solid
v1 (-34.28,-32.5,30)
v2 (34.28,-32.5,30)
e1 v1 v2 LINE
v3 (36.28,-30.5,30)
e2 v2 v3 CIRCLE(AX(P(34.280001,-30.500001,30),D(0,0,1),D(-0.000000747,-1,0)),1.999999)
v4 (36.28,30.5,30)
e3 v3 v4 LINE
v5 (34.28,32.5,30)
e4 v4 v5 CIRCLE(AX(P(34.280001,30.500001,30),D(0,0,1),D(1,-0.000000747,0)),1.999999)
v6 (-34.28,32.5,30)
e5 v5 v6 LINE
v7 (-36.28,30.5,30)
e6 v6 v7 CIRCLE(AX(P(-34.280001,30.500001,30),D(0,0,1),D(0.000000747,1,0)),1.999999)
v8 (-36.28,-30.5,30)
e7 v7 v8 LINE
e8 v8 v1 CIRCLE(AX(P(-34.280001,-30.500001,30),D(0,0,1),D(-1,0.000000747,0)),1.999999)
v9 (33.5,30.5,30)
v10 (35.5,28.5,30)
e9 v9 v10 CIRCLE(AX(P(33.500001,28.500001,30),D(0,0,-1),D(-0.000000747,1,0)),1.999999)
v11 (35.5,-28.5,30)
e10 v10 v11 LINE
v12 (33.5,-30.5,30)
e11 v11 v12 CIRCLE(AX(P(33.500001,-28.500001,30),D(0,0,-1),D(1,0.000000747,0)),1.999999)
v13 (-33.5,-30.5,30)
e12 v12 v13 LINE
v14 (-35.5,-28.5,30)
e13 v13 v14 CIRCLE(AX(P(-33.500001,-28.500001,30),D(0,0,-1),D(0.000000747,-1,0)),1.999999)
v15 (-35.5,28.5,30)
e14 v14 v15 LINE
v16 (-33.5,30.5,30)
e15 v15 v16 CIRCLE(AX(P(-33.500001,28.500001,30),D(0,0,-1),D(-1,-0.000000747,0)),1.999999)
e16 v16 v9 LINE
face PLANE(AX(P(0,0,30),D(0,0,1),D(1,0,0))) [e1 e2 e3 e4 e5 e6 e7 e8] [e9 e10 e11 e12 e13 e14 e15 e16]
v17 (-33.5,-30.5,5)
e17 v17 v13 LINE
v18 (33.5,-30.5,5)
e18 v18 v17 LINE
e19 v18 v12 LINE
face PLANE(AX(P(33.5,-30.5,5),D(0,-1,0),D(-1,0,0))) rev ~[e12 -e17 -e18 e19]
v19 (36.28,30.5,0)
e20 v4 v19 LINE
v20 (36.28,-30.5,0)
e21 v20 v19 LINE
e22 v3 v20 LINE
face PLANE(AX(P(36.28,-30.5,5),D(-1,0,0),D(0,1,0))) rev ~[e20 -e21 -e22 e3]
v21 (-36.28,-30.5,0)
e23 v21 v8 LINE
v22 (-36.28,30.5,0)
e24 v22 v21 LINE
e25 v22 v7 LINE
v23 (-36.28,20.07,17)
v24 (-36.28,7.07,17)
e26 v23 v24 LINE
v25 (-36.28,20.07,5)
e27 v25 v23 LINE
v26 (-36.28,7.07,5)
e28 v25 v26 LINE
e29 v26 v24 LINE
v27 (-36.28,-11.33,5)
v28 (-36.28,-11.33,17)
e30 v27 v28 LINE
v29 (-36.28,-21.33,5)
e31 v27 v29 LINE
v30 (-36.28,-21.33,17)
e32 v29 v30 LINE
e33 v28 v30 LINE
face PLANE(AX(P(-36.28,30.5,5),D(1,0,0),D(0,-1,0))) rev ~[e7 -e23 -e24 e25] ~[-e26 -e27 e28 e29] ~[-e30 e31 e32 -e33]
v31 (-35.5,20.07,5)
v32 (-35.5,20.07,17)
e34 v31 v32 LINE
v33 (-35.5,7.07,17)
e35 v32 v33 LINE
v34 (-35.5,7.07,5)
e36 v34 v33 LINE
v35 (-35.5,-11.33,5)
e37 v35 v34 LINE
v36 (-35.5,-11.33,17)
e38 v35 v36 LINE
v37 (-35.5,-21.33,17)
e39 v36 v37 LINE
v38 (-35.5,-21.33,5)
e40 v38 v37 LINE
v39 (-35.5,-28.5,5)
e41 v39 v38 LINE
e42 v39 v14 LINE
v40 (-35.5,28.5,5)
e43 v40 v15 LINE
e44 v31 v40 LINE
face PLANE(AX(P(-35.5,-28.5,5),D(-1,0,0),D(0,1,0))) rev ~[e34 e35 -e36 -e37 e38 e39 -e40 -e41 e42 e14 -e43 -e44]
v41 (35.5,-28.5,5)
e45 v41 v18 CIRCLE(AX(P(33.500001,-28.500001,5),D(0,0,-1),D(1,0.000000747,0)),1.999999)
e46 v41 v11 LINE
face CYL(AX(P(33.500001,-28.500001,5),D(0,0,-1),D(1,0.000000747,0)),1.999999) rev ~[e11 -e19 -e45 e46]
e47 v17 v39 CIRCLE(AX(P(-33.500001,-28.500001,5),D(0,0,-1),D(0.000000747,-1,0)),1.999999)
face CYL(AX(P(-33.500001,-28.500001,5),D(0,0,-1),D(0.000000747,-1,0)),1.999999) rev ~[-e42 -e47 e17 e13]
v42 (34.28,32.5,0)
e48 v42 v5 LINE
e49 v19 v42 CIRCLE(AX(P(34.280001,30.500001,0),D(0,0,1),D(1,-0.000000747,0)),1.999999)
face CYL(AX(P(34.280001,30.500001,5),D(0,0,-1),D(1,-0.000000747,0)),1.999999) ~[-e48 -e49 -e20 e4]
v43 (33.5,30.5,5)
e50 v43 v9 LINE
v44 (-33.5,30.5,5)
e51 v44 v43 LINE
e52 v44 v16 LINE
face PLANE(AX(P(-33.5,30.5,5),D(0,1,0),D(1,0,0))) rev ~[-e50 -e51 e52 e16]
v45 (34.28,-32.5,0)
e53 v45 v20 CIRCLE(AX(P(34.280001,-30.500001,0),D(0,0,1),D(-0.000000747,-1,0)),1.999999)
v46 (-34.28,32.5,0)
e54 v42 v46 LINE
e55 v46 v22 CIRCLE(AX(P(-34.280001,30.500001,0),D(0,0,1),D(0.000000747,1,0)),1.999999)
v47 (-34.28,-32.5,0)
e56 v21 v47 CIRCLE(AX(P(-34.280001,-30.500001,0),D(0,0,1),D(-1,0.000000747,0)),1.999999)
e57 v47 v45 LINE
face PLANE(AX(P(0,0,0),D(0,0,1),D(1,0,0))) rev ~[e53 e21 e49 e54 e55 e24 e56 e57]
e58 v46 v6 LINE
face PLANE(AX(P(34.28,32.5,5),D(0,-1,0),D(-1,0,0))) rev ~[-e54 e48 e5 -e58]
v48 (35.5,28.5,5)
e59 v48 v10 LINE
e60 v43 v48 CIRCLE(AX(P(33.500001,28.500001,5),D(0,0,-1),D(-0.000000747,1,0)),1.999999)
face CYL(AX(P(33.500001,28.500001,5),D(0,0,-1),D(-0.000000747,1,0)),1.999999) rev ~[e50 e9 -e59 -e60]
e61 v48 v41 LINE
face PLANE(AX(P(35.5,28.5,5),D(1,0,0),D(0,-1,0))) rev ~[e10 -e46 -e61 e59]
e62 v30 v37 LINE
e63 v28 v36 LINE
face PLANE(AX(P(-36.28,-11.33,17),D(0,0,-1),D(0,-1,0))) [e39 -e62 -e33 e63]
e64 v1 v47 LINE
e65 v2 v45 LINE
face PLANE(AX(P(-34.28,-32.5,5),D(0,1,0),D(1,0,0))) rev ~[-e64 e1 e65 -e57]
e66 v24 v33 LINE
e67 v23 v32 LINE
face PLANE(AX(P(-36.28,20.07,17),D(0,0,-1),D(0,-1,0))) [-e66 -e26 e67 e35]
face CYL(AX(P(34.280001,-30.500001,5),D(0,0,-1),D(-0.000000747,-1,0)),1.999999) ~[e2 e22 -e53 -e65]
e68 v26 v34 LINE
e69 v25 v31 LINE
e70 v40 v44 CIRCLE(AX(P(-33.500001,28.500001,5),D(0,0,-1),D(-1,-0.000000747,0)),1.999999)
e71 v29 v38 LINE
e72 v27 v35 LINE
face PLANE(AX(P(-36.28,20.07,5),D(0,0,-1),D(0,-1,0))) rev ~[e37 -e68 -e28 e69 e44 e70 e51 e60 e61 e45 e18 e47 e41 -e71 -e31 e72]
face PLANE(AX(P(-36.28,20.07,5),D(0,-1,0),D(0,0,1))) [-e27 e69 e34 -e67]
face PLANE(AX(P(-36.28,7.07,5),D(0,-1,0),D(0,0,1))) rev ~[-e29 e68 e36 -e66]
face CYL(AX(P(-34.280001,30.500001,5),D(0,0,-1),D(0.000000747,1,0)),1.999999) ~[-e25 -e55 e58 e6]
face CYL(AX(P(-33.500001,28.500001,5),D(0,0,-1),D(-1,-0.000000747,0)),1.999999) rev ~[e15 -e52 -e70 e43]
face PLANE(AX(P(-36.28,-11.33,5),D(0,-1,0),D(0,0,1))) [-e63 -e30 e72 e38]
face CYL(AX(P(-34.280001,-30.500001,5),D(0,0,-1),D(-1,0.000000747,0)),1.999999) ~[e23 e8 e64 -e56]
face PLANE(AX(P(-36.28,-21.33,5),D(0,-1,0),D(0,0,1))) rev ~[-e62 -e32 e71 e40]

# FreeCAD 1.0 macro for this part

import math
import FreeCAD as App
import Part
import Sketcher
from FreeCAD import Vector
Q = App.Units.Quantity

doc = App.newDocument("Part")
body = doc.addObject("PartDesign::Body", "Body")

sketch1 = doc.addObject("Sketcher::SketchObject", "Sketch")
body.addObject(sketch1)
sketch1.AttachmentSupport = (doc.XY_Plane, [""])
sketch1.MapMode = "FlatFace"
sketch1.addGeometry(Part.LineSegment(Vector(34.28, 32.5, 0), Vector(-34.28, 32.5, 0)), False)
sketch1.addGeometry(Part.ArcOfCircle(Part.Circle(Vector(-34.280001, 30.500001, 0), Vector(0, 0, 1), 1.999999), math.radians(89.999957), math.radians(180.000043)), False)
sketch1.addGeometry(Part.LineSegment(Vector(-36.28, 30.5, 0), Vector(-36.28, -30.5, 0)), False)
sketch1.addGeometry(Part.ArcOfCircle(Part.Circle(Vector(-34.280001, -30.500001, 0), Vector(0, 0, 1), 1.999999), math.radians(179.999957), math.radians(270.000043)), False)
sketch1.addGeometry(Part.LineSegment(Vector(-34.28, -32.5, 0), Vector(34.28, -32.5, 0)), False)
sketch1.addGeometry(Part.ArcOfCircle(Part.Circle(Vector(34.280001, -30.500001, 0), Vector(0, 0, 1), 1.999999), math.radians(-90.000043), math.radians(0.000043)), False)
sketch1.addGeometry(Part.LineSegment(Vector(36.28, -30.5, 0), Vector(36.28, 30.5, 0)), False)
sketch1.addGeometry(Part.ArcOfCircle(Part.Circle(Vector(34.280001, 30.500001, 0), Vector(0, 0, 1), 1.999999), math.radians(-0.000043), math.radians(90.000043)), False)
sketch1.addConstraint(Sketcher.Constraint("Tangent", 0, 2, 1, 1))
sketch1.addConstraint(Sketcher.Constraint("Tangent", 1, 2, 2, 1))
sketch1.addConstraint(Sketcher.Constraint("Tangent", 2, 2, 3, 1))
sketch1.addConstraint(Sketcher.Constraint("Tangent", 3, 2, 4, 1))
sketch1.addConstraint(Sketcher.Constraint("Tangent", 4, 2, 5, 1))
sketch1.addConstraint(Sketcher.Constraint("Tangent", 5, 2, 6, 1))
sketch1.addConstraint(Sketcher.Constraint("Tangent", 6, 2, 7, 1))
sketch1.addConstraint(Sketcher.Constraint("Tangent", 7, 2, 0, 1))
sketch1.addConstraint(Sketcher.Constraint("Horizontal", 0))
sketch1.addConstraint(Sketcher.Constraint("Vertical", 2))
sketch1.addConstraint(Sketcher.Constraint("Horizontal", 4))
sketch1.addConstraint(Sketcher.Constraint("Vertical", 6))
sketch1.addConstraint(Sketcher.Constraint("Equal", 1, 3))
sketch1.addConstraint(Sketcher.Constraint("Equal", 3, 5))
sketch1.addConstraint(Sketcher.Constraint("Equal", 5, 7))
sketch1.addConstraint(Sketcher.Constraint("Symmetric", 1, 3, 5, 3, -1, 1))
sketch1.addConstraint(Sketcher.Constraint("Radius", 1, Q("1.999999 mm")))
sketch1.addConstraint(Sketcher.Constraint("DistanceY", 2, 2, 2, 1, Q("61 mm")))
sketch1.addConstraint(Sketcher.Constraint("DistanceX", 0, 2, 0, 1, Q("68.56 mm")))
pad1 = doc.addObject("PartDesign::Pad", "Pad")
body.addObject(pad1)
pad1.Profile = sketch1
pad1.Length = 5

sketch2 = doc.addObject("Sketcher::SketchObject", "Sketch001")
body.addObject(sketch2)
sketch2.AttachmentSupport = (doc.XY_Plane, [""])
sketch2.MapMode = "FlatFace"
sketch2.AttachmentOffset = App.Placement(Vector(0, 0, 5), App.Rotation())
sketch2.addGeometry(Part.ArcOfCircle(Part.Circle(Vector(34.280001, 30.500001, 0), Vector(0, 0, 1), 1.999999), math.radians(-0.000043), math.radians(90.000043)), False)
sketch2.addGeometry(Part.LineSegment(Vector(34.28, 32.5, 0), Vector(-34.28, 32.5, 0)), False)
sketch2.addGeometry(Part.ArcOfCircle(Part.Circle(Vector(-34.280001, 30.500001, 0), Vector(0, 0, 1), 1.999999), math.radians(89.999957), math.radians(180.000043)), False)
sketch2.addGeometry(Part.LineSegment(Vector(-36.28, 30.5, 0), Vector(-36.28, -30.5, 0)), False)
sketch2.addGeometry(Part.ArcOfCircle(Part.Circle(Vector(-34.280001, -30.500001, 0), Vector(0, 0, 1), 1.999999), math.radians(179.999957), math.radians(270.000043)), False)
sketch2.addGeometry(Part.LineSegment(Vector(-34.28, -32.5, 0), Vector(34.28, -32.5, 0)), False)
sketch2.addGeometry(Part.ArcOfCircle(Part.Circle(Vector(34.280001, -30.500001, 0), Vector(0, 0, 1), 1.999999), math.radians(-90.000043), math.radians(0.000043)), False)
sketch2.addGeometry(Part.LineSegment(Vector(36.28, -30.5, 0), Vector(36.28, 30.5, 0)), False)
sketch2.addGeometry(Part.LineSegment(Vector(-35.5, -28.5, 0), Vector(-35.5, 28.5, 0)), False)
sketch2.addGeometry(Part.ArcOfCircle(Part.Circle(Vector(-33.500001, 28.500001, 0), Vector(0, 0, 1), 1.999999), math.radians(89.999957), math.radians(180.000043)), False)
sketch2.addGeometry(Part.LineSegment(Vector(-33.5, 30.5, 0), Vector(33.5, 30.5, 0)), False)
sketch2.addGeometry(Part.ArcOfCircle(Part.Circle(Vector(33.500001, 28.500001, 0), Vector(0, 0, 1), 1.999999), math.radians(-0.000043), math.radians(90.000043)), False)
sketch2.addGeometry(Part.LineSegment(Vector(35.5, 28.5, 0), Vector(35.5, -28.5, 0)), False)
sketch2.addGeometry(Part.ArcOfCircle(Part.Circle(Vector(33.500001, -28.500001, 0), Vector(0, 0, 1), 1.999999), math.radians(-90.000043), math.radians(0.000043)), False)
sketch2.addGeometry(Part.LineSegment(Vector(33.5, -30.5, 0), Vector(-33.5, -30.5, 0)), False)
sketch2.addGeometry(Part.ArcOfCircle(Part.Circle(Vector(-33.500001, -28.500001, 0), Vector(0, 0, 1), 1.999999), math.radians(179.999957), math.radians(270.000043)), False)
sketch2.addConstraint(Sketcher.Constraint("Tangent", 0, 2, 1, 1))
sketch2.addConstraint(Sketcher.Constraint("Tangent", 1, 2, 2, 1))
sketch2.addConstraint(Sketcher.Constraint("Tangent", 2, 2, 3, 1))
sketch2.addConstraint(Sketcher.Constraint("Tangent", 3, 2, 4, 1))
sketch2.addConstraint(Sketcher.Constraint("Tangent", 4, 2, 5, 1))
sketch2.addConstraint(Sketcher.Constraint("Tangent", 5, 2, 6, 1))
sketch2.addConstraint(Sketcher.Constraint("Tangent", 6, 2, 7, 1))
sketch2.addConstraint(Sketcher.Constraint("Tangent", 7, 2, 0, 1))
sketch2.addConstraint(Sketcher.Constraint("Tangent", 8, 2, 9, 2))
sketch2.addConstraint(Sketcher.Constraint("Tangent", 9, 1, 10, 1))
sketch2.addConstraint(Sketcher.Constraint("Tangent", 10, 2, 11, 2))
sketch2.addConstraint(Sketcher.Constraint("Tangent", 11, 1, 12, 1))
sketch2.addConstraint(Sketcher.Constraint("Tangent", 12, 2, 13, 2))
sketch2.addConstraint(Sketcher.Constraint("Tangent", 13, 1, 14, 1))
sketch2.addConstraint(Sketcher.Constraint("Tangent", 14, 2, 15, 2))
sketch2.addConstraint(Sketcher.Constraint("Tangent", 15, 1, 8, 1))
sketch2.addConstraint(Sketcher.Constraint("Horizontal", 1))
sketch2.addConstraint(Sketcher.Constraint("Vertical", 3))
sketch2.addConstraint(Sketcher.Constraint("Horizontal", 5))
sketch2.addConstraint(Sketcher.Constraint("Vertical", 7))
sketch2.addConstraint(Sketcher.Constraint("Vertical", 8))
sketch2.addConstraint(Sketcher.Constraint("Horizontal", 10))
sketch2.addConstraint(Sketcher.Constraint("Vertical", 12))
sketch2.addConstraint(Sketcher.Constraint("Horizontal", 14))
sketch2.addConstraint(Sketcher.Constraint("Equal", 0, 2))
sketch2.addConstraint(Sketcher.Constraint("Equal", 2, 4))
sketch2.addConstraint(Sketcher.Constraint("Equal", 4, 6))
sketch2.addConstraint(Sketcher.Constraint("Equal", 6, 9))
sketch2.addConstraint(Sketcher.Constraint("Equal", 9, 11))
sketch2.addConstraint(Sketcher.Constraint("Equal", 11, 13))
sketch2.addConstraint(Sketcher.Constraint("Equal", 13, 15))
sketch2.addConstraint(Sketcher.Constraint("Symmetric", 0, 3, 4, 3, -1, 1))
sketch2.addConstraint(Sketcher.Constraint("Symmetric", 9, 3, 13, 3, -1, 1))
sketch2.addConstraint(Sketcher.Constraint("Horizontal", 7, 2, 9, 1))
sketch2.addConstraint(Sketcher.Constraint("Radius", 0, Q("1.999999 mm")))
sketch2.addConstraint(Sketcher.Constraint("DistanceX", 10, 1, 10, 2, Q("67 mm")))
sketch2.addConstraint(Sketcher.Constraint("DistanceY", 3, 2, 3, 1, Q("61 mm")))
sketch2.addConstraint(Sketcher.Constraint("DistanceX", 1, 2, 1, 1, Q("68.56 mm")))
pad2 = doc.addObject("PartDesign::Pad", "Pad001")
body.addObject(pad2)
pad2.Profile = sketch2
pad2.Length = 25

sketch3 = doc.addObject("Sketcher::SketchObject", "Sketch002")
body.addObject(sketch3)
sketch3.AttachmentSupport = (doc.YZ_Plane, [""])
sketch3.MapMode = "FlatFace"
sketch3.AttachmentOffset = App.Placement(Vector(0, 0, -36.28), App.Rotation())
sketch3.addGeometry(Part.LineSegment(Vector(-11.33, 17, 0), Vector(-11.33, 5, 0)), False)
sketch3.addGeometry(Part.LineSegment(Vector(-11.33, 5, 0), Vector(-21.33, 5, 0)), False)
sketch3.addGeometry(Part.LineSegment(Vector(-21.33, 5, 0), Vector(-21.33, 17, 0)), False)
sketch3.addGeometry(Part.LineSegment(Vector(-21.33, 17, 0), Vector(-11.33, 17, 0)), False)
sketch3.addGeometry(Part.LineSegment(Vector(20.07, 17, 0), Vector(20.07, 5, 0)), False)
sketch3.addGeometry(Part.LineSegment(Vector(20.07, 5, 0), Vector(7.07, 5, 0)), False)
sketch3.addGeometry(Part.LineSegment(Vector(7.07, 5, 0), Vector(7.07, 17, 0)), False)
sketch3.addGeometry(Part.LineSegment(Vector(7.07, 17, 0), Vector(20.07, 17, 0)), False)
sketch3.addConstraint(Sketcher.Constraint("Coincident", 0, 2, 1, 1))
sketch3.addConstraint(Sketcher.Constraint("Coincident", 1, 2, 2, 1))
sketch3.addConstraint(Sketcher.Constraint("Coincident", 2, 2, 3, 1))
sketch3.addConstraint(Sketcher.Constraint("Coincident", 3, 2, 0, 1))
sketch3.addConstraint(Sketcher.Constraint("Coincident", 4, 2, 5, 1))
sketch3.addConstraint(Sketcher.Constraint("Coincident", 5, 2, 6, 1))
sketch3.addConstraint(Sketcher.Constraint("Coincident", 6, 2, 7, 1))
sketch3.addConstraint(Sketcher.Constraint("Coincident", 7, 2, 4, 1))
sketch3.addConstraint(Sketcher.Constraint("Vertical", 0))
sketch3.addConstraint(Sketcher.Constraint("Horizontal", 1))
sketch3.addConstraint(Sketcher.Constraint("Vertical", 2))
sketch3.addConstraint(Sketcher.Constraint("Horizontal", 3))
sketch3.addConstraint(Sketcher.Constraint("Vertical", 4))
sketch3.addConstraint(Sketcher.Constraint("Horizontal", 5))
sketch3.addConstraint(Sketcher.Constraint("Vertical", 6))
sketch3.addConstraint(Sketcher.Constraint("Horizontal", 7))
sketch3.addConstraint(Sketcher.Constraint("Horizontal", 1, 2, 4, 2))
sketch3.addConstraint(Sketcher.Constraint("Horizontal", 3, 2, 6, 2))
sketch3.addConstraint(Sketcher.Constraint("DistanceX", 1, 2, 1, 1, Q("10 mm")))
sketch3.addConstraint(Sketcher.Constraint("DistanceX", 5, 2, 5, 1, Q("13 mm")))
sketch3.addConstraint(Sketcher.Constraint("DistanceY", 0, 2, 0, 1, Q("12 mm")))
sketch3.addConstraint(Sketcher.Constraint("DistanceY", -1, 1, 0, 2, Q("5 mm")))
sketch3.addConstraint(Sketcher.Constraint("DistanceX", 0, 2, 4, 2, Q("31.4 mm")))
sketch3.addConstraint(Sketcher.Constraint("DistanceX", 0, 2, -1, 1, Q("11.33 mm")))
pocket1 = doc.addObject("PartDesign::Pocket", "Pocket")
body.addObject(pocket1)
pocket1.Profile = sketch3
pocket1.Length = 2.1
pocket1.Reversed = True

doc.recompute()
